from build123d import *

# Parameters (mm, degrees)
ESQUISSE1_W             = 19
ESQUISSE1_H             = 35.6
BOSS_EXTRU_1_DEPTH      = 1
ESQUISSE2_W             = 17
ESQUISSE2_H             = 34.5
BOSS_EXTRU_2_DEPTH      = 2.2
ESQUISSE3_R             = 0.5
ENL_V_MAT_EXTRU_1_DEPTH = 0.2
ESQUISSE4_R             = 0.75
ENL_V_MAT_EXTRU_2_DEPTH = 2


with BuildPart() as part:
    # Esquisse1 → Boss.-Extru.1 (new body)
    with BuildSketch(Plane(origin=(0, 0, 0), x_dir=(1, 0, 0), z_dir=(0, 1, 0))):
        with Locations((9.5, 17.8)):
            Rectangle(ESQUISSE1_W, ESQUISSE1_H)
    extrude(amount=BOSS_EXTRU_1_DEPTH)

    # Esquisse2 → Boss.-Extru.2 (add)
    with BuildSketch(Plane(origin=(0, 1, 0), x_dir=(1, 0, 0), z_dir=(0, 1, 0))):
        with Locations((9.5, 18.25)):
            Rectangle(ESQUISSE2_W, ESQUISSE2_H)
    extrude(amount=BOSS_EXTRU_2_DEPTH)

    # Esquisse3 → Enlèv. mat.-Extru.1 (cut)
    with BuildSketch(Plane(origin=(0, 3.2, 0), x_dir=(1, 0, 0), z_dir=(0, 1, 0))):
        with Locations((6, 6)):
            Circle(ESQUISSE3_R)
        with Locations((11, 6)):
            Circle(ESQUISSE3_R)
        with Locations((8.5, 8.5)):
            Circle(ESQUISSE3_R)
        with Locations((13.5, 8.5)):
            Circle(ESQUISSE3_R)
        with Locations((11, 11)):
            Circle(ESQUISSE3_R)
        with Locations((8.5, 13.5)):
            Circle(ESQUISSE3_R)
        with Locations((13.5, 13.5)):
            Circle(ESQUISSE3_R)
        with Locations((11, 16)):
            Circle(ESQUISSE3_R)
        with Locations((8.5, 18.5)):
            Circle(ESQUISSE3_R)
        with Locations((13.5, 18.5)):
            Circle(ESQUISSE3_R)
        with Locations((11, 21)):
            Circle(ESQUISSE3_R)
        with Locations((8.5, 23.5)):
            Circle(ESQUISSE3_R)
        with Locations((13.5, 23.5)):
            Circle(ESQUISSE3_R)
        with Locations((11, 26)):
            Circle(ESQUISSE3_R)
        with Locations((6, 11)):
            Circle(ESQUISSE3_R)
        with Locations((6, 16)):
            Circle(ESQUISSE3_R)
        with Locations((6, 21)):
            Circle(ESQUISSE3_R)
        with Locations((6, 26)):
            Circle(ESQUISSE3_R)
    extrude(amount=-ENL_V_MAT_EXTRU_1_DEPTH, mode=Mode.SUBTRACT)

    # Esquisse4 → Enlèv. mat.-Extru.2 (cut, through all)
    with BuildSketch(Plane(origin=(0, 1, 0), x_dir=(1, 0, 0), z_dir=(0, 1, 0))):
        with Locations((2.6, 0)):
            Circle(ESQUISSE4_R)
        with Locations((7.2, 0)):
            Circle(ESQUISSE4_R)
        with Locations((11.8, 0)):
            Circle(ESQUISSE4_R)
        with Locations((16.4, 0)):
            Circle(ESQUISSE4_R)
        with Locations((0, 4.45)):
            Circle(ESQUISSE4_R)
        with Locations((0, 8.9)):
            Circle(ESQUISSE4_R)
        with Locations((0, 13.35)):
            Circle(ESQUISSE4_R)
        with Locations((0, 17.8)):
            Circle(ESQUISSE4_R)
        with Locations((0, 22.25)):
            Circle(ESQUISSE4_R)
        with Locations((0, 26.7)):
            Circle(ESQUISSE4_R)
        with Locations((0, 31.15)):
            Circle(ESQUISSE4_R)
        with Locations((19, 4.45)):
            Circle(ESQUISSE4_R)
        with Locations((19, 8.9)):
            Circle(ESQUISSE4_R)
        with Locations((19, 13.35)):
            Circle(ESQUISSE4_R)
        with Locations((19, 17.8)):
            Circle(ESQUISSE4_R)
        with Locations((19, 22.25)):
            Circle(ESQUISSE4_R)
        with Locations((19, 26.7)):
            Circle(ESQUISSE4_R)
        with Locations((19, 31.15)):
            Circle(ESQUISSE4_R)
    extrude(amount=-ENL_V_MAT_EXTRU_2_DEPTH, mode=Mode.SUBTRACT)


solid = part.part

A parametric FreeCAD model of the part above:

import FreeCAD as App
import Part
import Sketcher


def add_polygon(sketch, points):
    """Adds a closed chain of lines whose ends are joined by coincident constraints."""
    first, n = sketch.GeometryCount, len(points)
    for a, b in zip(points, points[1:] + points[:1]):
        sketch.addGeometry(Part.LineSegment(App.Vector(*a, 0), App.Vector(*b, 0)), False)
    for i in range(n):
        sketch.addConstraint(Sketcher.Constraint("Coincident", first + i, 2, first + (i + 1) % n, 1))

doc = App.newDocument("Part")
body = doc.addObject("PartDesign::Body", "Body")

# Sketch on XZ plane
sketch1 = doc.addObject("Sketcher::SketchObject", "Sketch")
body.addObject(sketch1)
sketch1.AttachmentSupport = (doc.XZ_Plane, [""])
sketch1.MapMode = "FlatFace"
add_polygon(sketch1, [(0, -36), (0, 0), (19, 0), (19, -36)])  # lines 0-3
sketch1.addConstraint([
    Sketcher.Constraint("Vertical", 0),
    Sketcher.Constraint("Horizontal", 1),
    Sketcher.Constraint("Vertical", 2),
    Sketcher.Constraint("Horizontal", 3),
    Sketcher.Constraint("Coincident", 0, 2, -1, 1),
    Sketcher.Constraint("DistanceX", 1, 1, 1, 2, 19.0),
    Sketcher.Constraint("DistanceY", 0, 1, 0, 2, 35.6),
])
pad1 = doc.addObject("PartDesign::Pad", "Pad")
body.addObject(pad1)
pad1.Profile = sketch1
pad1.Length = 1
pad1.Reversed = True

# Sketch on XZ plane
sketch2 = doc.addObject("Sketcher::SketchObject", "Sketch001")
body.addObject(sketch2)
sketch2.AttachmentSupport = (doc.XZ_Plane, [""])
sketch2.MapMode = "FlatFace"
sketch2.AttachmentOffset = App.Placement(App.Vector(0, 0, -1), App.Rotation())
add_polygon(sketch2, [(1, -36), (1, -1), (18, -1), (18, -36)])  # lines 0-3
sketch2.addConstraint([
    Sketcher.Constraint("Vertical", 0),
    Sketcher.Constraint("Horizontal", 1),
    Sketcher.Constraint("Vertical", 2),
    Sketcher.Constraint("Horizontal", 3),
    Sketcher.Constraint("DistanceX", 1, 1, 1, 2, 17.0),
    Sketcher.Constraint("DistanceY", 0, 1, 0, 2, 34.5),
    Sketcher.Constraint("DistanceX", -1, 1, 0, 2, 1.0),
    Sketcher.Constraint("DistanceY", 0, 2, -1, 1, 1.0),
])
pad2 = doc.addObject("PartDesign::Pad", "Pad001")
body.addObject(pad2)
pad2.Profile = sketch2
pad2.Length = 2.2
pad2.Reversed = True

# Sketch on XZ plane
sketch3 = doc.addObject("Sketcher::SketchObject", "Sketch002")
body.addObject(sketch3)
sketch3.AttachmentSupport = (doc.XZ_Plane, [""])
sketch3.MapMode = "FlatFace"
sketch3.AttachmentOffset = App.Placement(App.Vector(0, 0, -3.2), App.Rotation())
sketch3.addGeometry([
    Part.Circle(App.Vector(6, -6, 0), App.Vector(0, 0, 1), 0.5),  # 0
    Part.Circle(App.Vector(11, -6, 0), App.Vector(0, 0, 1), 0.5),  # 1
    Part.Circle(App.Vector(8.5, -8.5, 0), App.Vector(0, 0, 1), 0.5),  # 2
    Part.Circle(App.Vector(13.5, -8.5, 0), App.Vector(0, 0, 1), 0.5),  # 3
    Part.Circle(App.Vector(11, -11, 0), App.Vector(0, 0, 1), 0.5),  # 4
    Part.Circle(App.Vector(8.5, -13.5, 0), App.Vector(0, 0, 1), 0.5),  # 5
    Part.Circle(App.Vector(13.5, -13.5, 0), App.Vector(0, 0, 1), 0.5),  # 6
    Part.Circle(App.Vector(11, -16, 0), App.Vector(0, 0, 1), 0.5),  # 7
    Part.Circle(App.Vector(8.5, -18.5, 0), App.Vector(0, 0, 1), 0.5),  # 8
    Part.Circle(App.Vector(13.5, -18.5, 0), App.Vector(0, 0, 1), 0.5),  # 9
    Part.Circle(App.Vector(11, -21, 0), App.Vector(0, 0, 1), 0.5),  # 10
    Part.Circle(App.Vector(8.5, -23.5, 0), App.Vector(0, 0, 1), 0.5),  # 11
    Part.Circle(App.Vector(13.5, -23.5, 0), App.Vector(0, 0, 1), 0.5),  # 12
    Part.Circle(App.Vector(11, -26, 0), App.Vector(0, 0, 1), 0.5),  # 13
    Part.Circle(App.Vector(6, -11, 0), App.Vector(0, 0, 1), 0.5),  # 14
    Part.Circle(App.Vector(6, -16, 0), App.Vector(0, 0, 1), 0.5),  # 15
    Part.Circle(App.Vector(6, -21, 0), App.Vector(0, 0, 1), 0.5),  # 16
    Part.Circle(App.Vector(6, -26, 0), App.Vector(0, 0, 1), 0.5),  # 17
], False)
sketch3.addConstraint([
    Sketcher.Constraint("Equal", 0, 1),
    Sketcher.Constraint("Equal", 1, 2),
    Sketcher.Constraint("Equal", 2, 3),
    Sketcher.Constraint("Equal", 3, 4),
    Sketcher.Constraint("Equal", 4, 5),
    Sketcher.Constraint("Equal", 5, 6),
    Sketcher.Constraint("Equal", 6, 7),
    Sketcher.Constraint("Equal", 7, 8),
    Sketcher.Constraint("Equal", 8, 9),
    Sketcher.Constraint("Equal", 9, 10),
    Sketcher.Constraint("Equal", 10, 11),
    Sketcher.Constraint("Equal", 11, 12),
    Sketcher.Constraint("Equal", 12, 13),
    Sketcher.Constraint("Equal", 13, 14),
    Sketcher.Constraint("Equal", 14, 15),
    Sketcher.Constraint("Equal", 15, 16),
    Sketcher.Constraint("Equal", 16, 17),
    Sketcher.Constraint("Horizontal", 0, 3, 1, 3),
    Sketcher.Constraint("Horizontal", 2, 3, 3, 3),
    Sketcher.Constraint("Horizontal", 5, 3, 6, 3),
    Sketcher.Constraint("Horizontal", 8, 3, 9, 3),
    Sketcher.Constraint("Horizontal", 11, 3, 12, 3),
    Sketcher.Constraint("Horizontal", 4, 3, 14, 3),
    Sketcher.Constraint("Horizontal", 7, 3, 15, 3),
    Sketcher.Constraint("Horizontal", 10, 3, 16, 3),
    Sketcher.Constraint("Horizontal", 13, 3, 17, 3),
    Sketcher.Constraint("Vertical", 1, 3, 4, 3),
    Sketcher.Constraint("Vertical", 2, 3, 5, 3),
    Sketcher.Constraint("Vertical", 3, 3, 6, 3),
    Sketcher.Constraint("Vertical", 4, 3, 7, 3),
    Sketcher.Constraint("Vertical", 5, 3, 8, 3),
    Sketcher.Constraint("Vertical", 6, 3, 9, 3),
    Sketcher.Constraint("Vertical", 7, 3, 10, 3),
    Sketcher.Constraint("Vertical", 8, 3, 11, 3),
    Sketcher.Constraint("Vertical", 9, 3, 12, 3),
    Sketcher.Constraint("Vertical", 10, 3, 13, 3),
    Sketcher.Constraint("Vertical", 0, 3, 14, 3),
    Sketcher.Constraint("Vertical", 14, 3, 15, 3),
    Sketcher.Constraint("Vertical", 15, 3, 16, 3),
    Sketcher.Constraint("Vertical", 16, 3, 17, 3),
    Sketcher.Constraint("Diameter", 0, 1.0),
    Sketcher.Constraint("DistanceX", -1, 1, 0, 3, 6.0),
    Sketcher.Constraint("DistanceY", 0, 3, -1, 1, 6.0),
    Sketcher.Constraint("DistanceX", -1, 1, 1, 3, 11.0),
    Sketcher.Constraint("DistanceY", 4, 3, -1, 1, 11.0),
    Sketcher.Constraint("DistanceY", 7, 3, -1, 1, 16.0),
    Sketcher.Constraint("DistanceY", 10, 3, -1, 1, 21.0),
    Sketcher.Constraint("DistanceY", 13, 3, -1, 1, 26.0),
    Sketcher.Constraint("DistanceX", 2, 3, 3, 3, 5.0),
    Sketcher.Constraint("DistanceY", 5, 3, 2, 3, 5.0),
    Sketcher.Constraint("DistanceY", 8, 3, 5, 3, 5.0),
    Sketcher.Constraint("DistanceY", 11, 3, 8, 3, 5.0),
    Sketcher.Constraint("DistanceX", -1, 1, 2, 3, 8.5),
    Sketcher.Constraint("DistanceY", 2, 3, -1, 1, 8.5),
])
pocket1 = doc.addObject("PartDesign::Pocket", "Pocket")
body.addObject(pocket1)
pocket1.Profile = sketch3
pocket1.Length = 0.2
pocket1.Reversed = True

# Sketch on XZ plane
sketch4 = doc.addObject("Sketcher::SketchObject", "Sketch003")
body.addObject(sketch4)
sketch4.AttachmentSupport = (doc.XZ_Plane, [""])
sketch4.MapMode = "FlatFace"
sketch4.AttachmentOffset = App.Placement(App.Vector(0, 0, -1), App.Rotation())
sketch4.addGeometry([
    Part.Circle(App.Vector(2.6, 0, 0), App.Vector(0, 0, 1), 0.8),  # 0
    Part.Circle(App.Vector(7.2, 0, 0), App.Vector(0, 0, 1), 0.8),  # 1
    Part.Circle(App.Vector(11.8, 0, 0), App.Vector(0, 0, 1), 0.8),  # 2
    Part.Circle(App.Vector(16.4, 0, 0), App.Vector(0, 0, 1), 0.8),  # 3
    Part.Circle(App.Vector(0, -4.5, 0), App.Vector(0, 0, 1), 0.8),  # 4
    Part.Circle(App.Vector(0, -8.9, 0), App.Vector(0, 0, 1), 0.8),  # 5
    Part.Circle(App.Vector(0, -13.3, 0), App.Vector(0, 0, 1), 0.8),  # 6
    Part.Circle(App.Vector(0, -17.8, 0), App.Vector(0, 0, 1), 0.8),  # 7
    Part.Circle(App.Vector(0, -22.2, 0), App.Vector(0, 0, 1), 0.8),  # 8
    Part.Circle(App.Vector(0, -26.7, 0), App.Vector(0, 0, 1), 0.8),  # 9
    Part.Circle(App.Vector(0, -31.1, 0), App.Vector(0, 0, 1), 0.8),  # 10
    Part.Circle(App.Vector(19, -4.5, 0), App.Vector(0, 0, 1), 0.8),  # 11
    Part.Circle(App.Vector(19, -8.9, 0), App.Vector(0, 0, 1), 0.8),  # 12
    Part.Circle(App.Vector(19, -13.3, 0), App.Vector(0, 0, 1), 0.8),  # 13
    Part.Circle(App.Vector(19, -17.8, 0), App.Vector(0, 0, 1), 0.8),  # 14
    Part.Circle(App.Vector(19, -22.2, 0), App.Vector(0, 0, 1), 0.8),  # 15
    Part.Circle(App.Vector(19, -26.7, 0), App.Vector(0, 0, 1), 0.8),  # 16
    Part.Circle(App.Vector(19, -31.1, 0), App.Vector(0, 0, 1), 0.8),  # 17
], False)
sketch4.addConstraint([
    Sketcher.Constraint("Equal", 0, 1),
    Sketcher.Constraint("Equal", 1, 2),
    Sketcher.Constraint("Equal", 2, 3),
    Sketcher.Constraint("Equal", 3, 4),
    Sketcher.Constraint("Equal", 4, 5),
    Sketcher.Constraint("Equal", 5, 6),
    Sketcher.Constraint("Equal", 6, 7),
    Sketcher.Constraint("Equal", 7, 8),
    Sketcher.Constraint("Equal", 8, 9),
    Sketcher.Constraint("Equal", 9, 10),
    Sketcher.Constraint("Equal", 10, 11),
    Sketcher.Constraint("Equal", 11, 12),
    Sketcher.Constraint("Equal", 12, 13),
    Sketcher.Constraint("Equal", 13, 14),
    Sketcher.Constraint("Equal", 14, 15),
    Sketcher.Constraint("Equal", 15, 16),
    Sketcher.Constraint("Equal", 16, 17),
    Sketcher.Constraint("PointOnObject", 0, 3, -1),
    Sketcher.Constraint("PointOnObject", 1, 3, -1),
    Sketcher.Constraint("PointOnObject", 2, 3, -1),
    Sketcher.Constraint("PointOnObject", 3, 3, -1),
    Sketcher.Constraint("PointOnObject", 4, 3, -2),
    Sketcher.Constraint("PointOnObject", 5, 3, -2),
    Sketcher.Constraint("PointOnObject", 6, 3, -2),
    Sketcher.Constraint("PointOnObject", 7, 3, -2),
    Sketcher.Constraint("PointOnObject", 8, 3, -2),
    Sketcher.Constraint("PointOnObject", 9, 3, -2),
    Sketcher.Constraint("PointOnObject", 10, 3, -2),
    Sketcher.Constraint("Horizontal", 4, 3, 11, 3),
    Sketcher.Constraint("Horizontal", 5, 3, 12, 3),
    Sketcher.Constraint("Horizontal", 6, 3, 13, 3),
    Sketcher.Constraint("Horizontal", 7, 3, 14, 3),
    Sketcher.Constraint("Horizontal", 8, 3, 15, 3),
    Sketcher.Constraint("Horizontal", 9, 3, 16, 3),
    Sketcher.Constraint("Horizontal", 10, 3, 17, 3),
    Sketcher.Constraint("Vertical", 11, 3, 12, 3),
    Sketcher.Constraint("Vertical", 12, 3, 13, 3),
    Sketcher.Constraint("Vertical", 13, 3, 14, 3),
    Sketcher.Constraint("Vertical", 14, 3, 15, 3),
    Sketcher.Constraint("Vertical", 15, 3, 16, 3),
    Sketcher.Constraint("Vertical", 16, 3, 17, 3),
    Sketcher.Constraint("Diameter", 0, 1.5),
    Sketcher.Constraint("DistanceX", -1, 1, 11, 3, 19.0),
    Sketcher.Constraint("DistanceX", -1, 1, 0, 3, 2.6),
    Sketcher.Constraint("DistanceX", -1, 1, 1, 3, 7.2),
    Sketcher.Constraint("DistanceX", -1, 1, 2, 3, 11.8),
    Sketcher.Constraint("DistanceX", -1, 1, 3, 3, 16.4),
    Sketcher.Constraint("DistanceY", 5, 3, -1, 1, 8.9),
    Sketcher.Constraint("DistanceY", 7, 3, -1, 1, 17.8),
    Sketcher.Constraint("DistanceY", 9, 3, -1, 1, 26.7),
    Sketcher.Constraint("DistanceY", 6, 3, 4, 3, 8.9),
    Sketcher.Constraint("DistanceY", 8, 3, 6, 3, 8.9),
    Sketcher.Constraint("DistanceY", 10, 3, 8, 3, 8.9),
    Sketcher.Constraint("DistanceY", 4, 3, -1, 1, 4.45),
])
pocket2 = doc.addObject("PartDesign::Pocket", "Pocket001")
body.addObject(pocket2)
pocket2.Profile = sketch4
pocket2.Type = "ThroughAll"
pocket2.Reversed = True

doc.recompute()
